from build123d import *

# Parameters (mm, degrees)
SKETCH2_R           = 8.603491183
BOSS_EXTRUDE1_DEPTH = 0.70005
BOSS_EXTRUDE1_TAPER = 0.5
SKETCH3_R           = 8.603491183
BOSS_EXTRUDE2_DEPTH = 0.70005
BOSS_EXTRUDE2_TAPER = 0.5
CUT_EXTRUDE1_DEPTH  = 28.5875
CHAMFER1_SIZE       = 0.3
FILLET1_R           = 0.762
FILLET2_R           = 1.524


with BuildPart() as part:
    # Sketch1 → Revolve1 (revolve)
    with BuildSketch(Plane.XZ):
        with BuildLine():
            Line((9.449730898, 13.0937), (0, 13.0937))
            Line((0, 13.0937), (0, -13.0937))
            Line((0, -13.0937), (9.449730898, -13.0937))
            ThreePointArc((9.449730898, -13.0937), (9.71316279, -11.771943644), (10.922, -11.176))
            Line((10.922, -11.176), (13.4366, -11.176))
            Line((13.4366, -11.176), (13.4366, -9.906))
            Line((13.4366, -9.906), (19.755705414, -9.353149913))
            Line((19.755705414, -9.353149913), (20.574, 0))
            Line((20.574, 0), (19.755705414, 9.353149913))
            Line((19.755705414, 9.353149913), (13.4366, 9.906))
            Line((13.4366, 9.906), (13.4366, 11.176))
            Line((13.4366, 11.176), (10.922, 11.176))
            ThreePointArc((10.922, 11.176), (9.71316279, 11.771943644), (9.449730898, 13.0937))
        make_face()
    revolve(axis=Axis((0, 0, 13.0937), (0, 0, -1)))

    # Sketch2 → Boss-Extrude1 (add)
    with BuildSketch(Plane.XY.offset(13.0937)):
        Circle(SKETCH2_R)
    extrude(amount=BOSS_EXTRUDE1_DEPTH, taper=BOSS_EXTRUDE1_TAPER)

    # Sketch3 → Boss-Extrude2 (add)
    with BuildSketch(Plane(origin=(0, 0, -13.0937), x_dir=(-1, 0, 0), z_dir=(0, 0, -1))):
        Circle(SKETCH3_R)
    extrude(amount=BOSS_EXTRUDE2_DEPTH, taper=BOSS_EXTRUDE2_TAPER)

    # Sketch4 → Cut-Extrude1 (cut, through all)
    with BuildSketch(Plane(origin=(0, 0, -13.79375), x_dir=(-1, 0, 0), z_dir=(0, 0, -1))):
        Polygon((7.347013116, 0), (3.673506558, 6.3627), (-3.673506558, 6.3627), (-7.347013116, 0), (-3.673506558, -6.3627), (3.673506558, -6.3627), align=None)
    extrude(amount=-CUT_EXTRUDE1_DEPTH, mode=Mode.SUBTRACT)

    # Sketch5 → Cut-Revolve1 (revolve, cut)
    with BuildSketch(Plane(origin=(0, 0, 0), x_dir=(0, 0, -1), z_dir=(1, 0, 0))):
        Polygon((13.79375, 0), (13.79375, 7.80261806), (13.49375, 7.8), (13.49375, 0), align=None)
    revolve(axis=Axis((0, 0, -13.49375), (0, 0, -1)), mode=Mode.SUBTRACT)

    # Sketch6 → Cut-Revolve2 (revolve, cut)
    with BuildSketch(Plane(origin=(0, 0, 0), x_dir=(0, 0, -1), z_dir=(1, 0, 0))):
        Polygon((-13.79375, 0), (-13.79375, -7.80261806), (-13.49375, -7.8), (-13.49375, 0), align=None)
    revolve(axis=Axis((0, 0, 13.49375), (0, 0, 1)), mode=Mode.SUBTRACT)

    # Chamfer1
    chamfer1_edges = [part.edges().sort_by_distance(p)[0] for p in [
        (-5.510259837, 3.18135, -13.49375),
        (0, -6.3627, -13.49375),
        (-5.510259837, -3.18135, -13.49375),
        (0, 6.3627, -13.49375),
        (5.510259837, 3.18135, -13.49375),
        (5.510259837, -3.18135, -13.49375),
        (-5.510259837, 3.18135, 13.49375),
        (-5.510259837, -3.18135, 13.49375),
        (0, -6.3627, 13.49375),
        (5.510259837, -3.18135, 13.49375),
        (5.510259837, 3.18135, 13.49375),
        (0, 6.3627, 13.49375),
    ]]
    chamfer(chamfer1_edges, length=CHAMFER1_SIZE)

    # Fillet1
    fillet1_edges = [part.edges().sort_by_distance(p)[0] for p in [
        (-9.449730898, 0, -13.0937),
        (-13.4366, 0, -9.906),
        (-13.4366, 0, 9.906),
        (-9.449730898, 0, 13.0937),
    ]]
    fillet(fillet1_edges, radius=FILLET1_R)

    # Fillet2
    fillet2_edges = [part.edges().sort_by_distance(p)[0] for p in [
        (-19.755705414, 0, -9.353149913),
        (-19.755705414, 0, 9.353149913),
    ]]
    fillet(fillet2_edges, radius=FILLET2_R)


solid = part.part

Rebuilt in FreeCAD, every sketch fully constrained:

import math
import FreeCAD as App
import Part
import Sketcher

V = App.Vector
Q = App.Units.Quantity


def edges_at(feature, points):
    """Names of the edges that pass closest to the given points."""
    edges = feature.Shape.Edges
    near = lambda p: min(range(len(edges)), key=lambda i: edges[i].distToShape(Part.Vertex(*p))[0])
    return sorted({f"Edge{near(p) + 1}" for p in points})

doc = App.newDocument("Part")
body = doc.addObject("PartDesign::Body", "Body")

# Sketch on XZ plane
sketch1 = doc.addObject("Sketcher::SketchObject", "Sketch")
body.addObject(sketch1)
sketch1.AttachmentSupport = (doc.XZ_Plane, [""])
sketch1.MapMode = "FlatFace"
sketch1.addGeometry([
    Part.LineSegment(V(9.4, 13.1, 0), V(0, 13.1, 0)),  # 0
    Part.LineSegment(V(0, 13.1, 0), V(0, -13.1, 0)),  # 1
    Part.LineSegment(V(0, -13.1, 0), V(9.4, -13.1, 0)),  # 2
    Part.ArcOfCircle(Part.Circle(V(10.9, -12.7, 0), V(0, 0, 1), 1.5), math.radians(90), math.radians(195)),  # 3
    Part.LineSegment(V(10.9, -11.2, 0), V(13.4, -11.2, 0)),  # 4
    Part.LineSegment(V(13.4, -11.2, 0), V(13.4, -9.9, 0)),  # 5
    Part.LineSegment(V(13.4, -9.9, 0), V(19.8, -9.4, 0)),  # 6
    Part.LineSegment(V(19.8, -9.4, 0), V(20.6, 0, 0)),  # 7
    Part.LineSegment(V(20.6, 0, 0), V(19.8, 9.4, 0)),  # 8
    Part.LineSegment(V(19.8, 9.4, 0), V(13.4, 9.9, 0)),  # 9
    Part.LineSegment(V(13.4, 9.9, 0), V(13.4, 11.2, 0)),  # 10
    Part.LineSegment(V(13.4, 11.2, 0), V(10.9, 11.2, 0)),  # 11
    Part.ArcOfCircle(Part.Circle(V(10.9, 12.7, 0), V(0, 0, 1), 1.5), math.radians(165), math.radians(270)),  # 12
], False)
sketch1.addConstraint([
    Sketcher.Constraint("Coincident", 0, 2, 1, 1),
    Sketcher.Constraint("Coincident", 1, 2, 2, 1),
    Sketcher.Constraint("Coincident", 2, 2, 3, 2),
    Sketcher.Constraint("Tangent", 3, 1, 4, 1),
    Sketcher.Constraint("Coincident", 4, 2, 5, 1),
    Sketcher.Constraint("Coincident", 5, 2, 6, 1),
    Sketcher.Constraint("Coincident", 6, 2, 7, 1),
    Sketcher.Constraint("Coincident", 7, 2, 8, 1),
    Sketcher.Constraint("Coincident", 8, 2, 9, 1),
    Sketcher.Constraint("Coincident", 9, 2, 10, 1),
    Sketcher.Constraint("Coincident", 10, 2, 11, 1),
    Sketcher.Constraint("Tangent", 11, 2, 12, 2),
    Sketcher.Constraint("Coincident", 12, 1, 0, 1),
    Sketcher.Constraint("Horizontal", 0),
    Sketcher.Constraint("Vertical", 1),
    Sketcher.Constraint("Horizontal", 2),
    Sketcher.Constraint("Horizontal", 4),
    Sketcher.Constraint("Vertical", 5),
    Sketcher.Constraint("Vertical", 10),
    Sketcher.Constraint("Horizontal", 11),
    Sketcher.Constraint("Equal", 3, 12),
    Sketcher.Constraint("Symmetric", 0, 2, 1, 2, -1, 1),
    Sketcher.Constraint("Symmetric", 3, 3, 12, 3, -1),
    Sketcher.Constraint("Symmetric", 6, 2, 8, 2, -1),
    Sketcher.Constraint("Symmetric", 5, 2, 9, 2, -1),
    Sketcher.Constraint("PointOnObject", 7, 2, -1),
    Sketcher.Constraint("Perpendicular", 6, 8),
    Sketcher.Constraint("Radius", 3, Q("0.06 in")),
    Sketcher.Constraint("Angle", 6, Q("5 deg")),
    Sketcher.Constraint("DistanceY", 3, 3, 12, 3, Q("1 in")),
    Sketcher.Constraint("DistanceY", 5, 1, 5, 2, Q("0.05 in")),
    Sketcher.Constraint("DistanceX", 4, 1, 4, 2, Q("0.099 in")),
    Sketcher.Constraint("DistanceY", 1, 2, 1, 1, Q("1.031 in")),
    Sketcher.Constraint("DistanceX", -1, 1, 3, 3, Q("0.43 in")),
    Sketcher.Constraint("DistanceX", -1, 1, 7, 2, Q("0.81 in")),
])
revolution = doc.addObject("PartDesign::Revolution", "Revolution")
body.addObject(revolution)
revolution.Profile = sketch1
revolution.ReferenceAxis = (sketch1, ["V_Axis"])
revolution.Angle = 360

# Sketch on XY plane
sketch2 = doc.addObject("Sketcher::SketchObject", "Sketch001")
body.addObject(sketch2)
sketch2.AttachmentSupport = (doc.XY_Plane, [""])
sketch2.MapMode = "FlatFace"
sketch2.AttachmentOffset = App.Placement(V(0, 0, 0.5155 * 25.4), App.Rotation())
sketch2.addGeometry(Part.Circle(V(0, 0, 0), V(0, 0, 1), 9), False)
sketch2.addConstraint([
    Sketcher.Constraint("Coincident", 0, 3, -1, 1),
    Sketcher.Constraint("Diameter", 0, 17.206982),
])
pad1 = doc.addObject("PartDesign::Pad", "Pad")
body.addObject(pad1)
pad1.Profile = sketch2
pad1.Length = 0.70005
pad1.TaperAngle = -0.5

# Sketch on XY plane
sketch3 = doc.addObject("Sketcher::SketchObject", "Sketch002")
body.addObject(sketch3)
sketch3.AttachmentSupport = (doc.XY_Plane, [""])
sketch3.MapMode = "FlatFace"
sketch3.AttachmentOffset = App.Placement(V(0, 0, -0.5155 * 25.4), App.Rotation())
sketch3.addGeometry(Part.Circle(V(0, 0, 0), V(0, 0, 1), 9), False)
sketch3.addConstraint([
    Sketcher.Constraint("Coincident", 0, 3, -1, 1),
    Sketcher.Constraint("Diameter", 0, 17.206982),
])
pad2 = doc.addObject("PartDesign::Pad", "Pad001")
body.addObject(pad2)
pad2.Profile = sketch3
pad2.Length = 0.70005
pad2.Reversed = True
pad2.TaperAngle = -0.5

# Sketch on XY plane
sketch4 = doc.addObject("Sketcher::SketchObject", "Sketch003")
body.addObject(sketch4)
sketch4.AttachmentSupport = (doc.XY_Plane, [""])
sketch4.MapMode = "FlatFace"
sketch4.AttachmentOffset = App.Placement(V(0, 0, -13.79375), App.Rotation())
sketch4.addGeometry([
    Part.LineSegment(V(-7, 0, 0), V(-4, 6, 0)),  # 0
    Part.LineSegment(V(-4, 6, 0), V(4, 6, 0)),  # 1
    Part.LineSegment(V(4, 6, 0), V(7, 0, 0)),  # 2
    Part.LineSegment(V(7, 0, 0), V(4, -6, 0)),  # 3
    Part.LineSegment(V(4, -6, 0), V(-4, -6, 0)),  # 4
    Part.LineSegment(V(-4, -6, 0), V(-7, 0, 0)),  # 5
], False)
sketch4.addConstraint([
    Sketcher.Constraint("Coincident", 0, 2, 1, 1),
    Sketcher.Constraint("Coincident", 1, 2, 2, 1),
    Sketcher.Constraint("Coincident", 2, 2, 3, 1),
    Sketcher.Constraint("Coincident", 3, 2, 4, 1),
    Sketcher.Constraint("Coincident", 4, 2, 5, 1),
    Sketcher.Constraint("Coincident", 5, 2, 0, 1),
    Sketcher.Constraint("Horizontal", 1),
    Sketcher.Constraint("Horizontal", 4),
    Sketcher.Constraint("Symmetric", 0, 2, 3, 2, -1, 1),
    Sketcher.Constraint("Symmetric", 2, 2, 5, 2, -1, 1),
    Sketcher.Constraint("PointOnObject", 2, 2, -1),
    Sketcher.Constraint("Parallel", 2, 5),
    Sketcher.Constraint("Vertical", 1, 2, 3, 2),
    Sketcher.Constraint("Angle", 0, Q("60 deg")),
    Sketcher.Constraint("DistanceY", 3, 2, 1, 2, Q("0.501 in")),
    Sketcher.Constraint("DistanceX", 1, 1, 1, 2, 7.347013),
])
pocket1 = doc.addObject("PartDesign::Pocket", "Pocket")
body.addObject(pocket1)
pocket1.Profile = sketch4
pocket1.Type = "ThroughAll"
pocket1.Reversed = True

# Sketch on YZ plane
sketch5 = doc.addObject("Sketcher::SketchObject", "Sketch004")
body.addObject(sketch5)
sketch5.AttachmentSupport = (doc.YZ_Plane, [""])
sketch5.MapMode = "FlatFace"
sketch5.addGeometry([
    Part.LineSegment(V(0, -13.79, 0), V(7.8, -13.79, 0)),
    Part.LineSegment(V(7.8, -13.79, 0), V(7.8, -13.49, 0)),
    Part.LineSegment(V(7.8, -13.49, 0), V(0, -13.49, 0)),
    Part.LineSegment(V(0, -13.49, 0), V(0, -13.79, 0)),
], False)
sketch5.addConstraint([
    Sketcher.Constraint("Coincident", 0, 2, 1, 1),
    Sketcher.Constraint("Coincident", 1, 2, 2, 1),
    Sketcher.Constraint("Coincident", 2, 2, 3, 1),
    Sketcher.Constraint("Coincident", 3, 2, 0, 1),
    Sketcher.Constraint("Horizontal", 0),
    Sketcher.Constraint("Horizontal", 2),
    Sketcher.Constraint("Vertical", 3),
    Sketcher.Constraint("PointOnObject", 2, 2, -2),
    Sketcher.Constraint("Angle", 1, Q("90.5 deg")),
    Sketcher.Constraint("DistanceY", 1, 2, -1, 1, Q("0.53125 in")),
    Sketcher.Constraint("DistanceX", 2, 2, 2, 1, 7.8),
    Sketcher.Constraint("DistanceY", 3, 2, 3, 1, 0.3),
])
groove = doc.addObject("PartDesign::Groove", "Groove")
body.addObject(groove)
groove.Profile = sketch5
groove.ReferenceAxis = (sketch5, ["V_Axis"])
groove.Angle = 360

# Sketch on YZ plane
sketch6 = doc.addObject("Sketcher::SketchObject", "Sketch005")
body.addObject(sketch6)
sketch6.AttachmentSupport = (doc.YZ_Plane, [""])
sketch6.MapMode = "FlatFace"
sketch6.addGeometry([
    Part.LineSegment(V(0, 13.79, 0), V(-7.8, 13.79, 0)),
    Part.LineSegment(V(-7.8, 13.79, 0), V(-7.8, 13.49, 0)),
    Part.LineSegment(V(-7.8, 13.49, 0), V(0, 13.49, 0)),
    Part.LineSegment(V(0, 13.49, 0), V(0, 13.79, 0)),
], False)
sketch6.addConstraint([
    Sketcher.Constraint("Coincident", 0, 2, 1, 1),
    Sketcher.Constraint("Coincident", 1, 2, 2, 1),
    Sketcher.Constraint("Coincident", 2, 2, 3, 1),
    Sketcher.Constraint("Coincident", 3, 2, 0, 1),
    Sketcher.Constraint("Horizontal", 0),
    Sketcher.Constraint("Horizontal", 2),
    Sketcher.Constraint("Vertical", 3),
    Sketcher.Constraint("PointOnObject", 2, 2, -2),
    Sketcher.Constraint("Angle", 1, Q("-89.5 deg")),
    Sketcher.Constraint("DistanceY", -1, 1, 1, 2, Q("0.53125 in")),
    Sketcher.Constraint("DistanceX", 2, 1, 2, 2, 7.8),
    Sketcher.Constraint("DistanceY", 3, 1, 3, 2, 0.3),
])
groove2 = doc.addObject("PartDesign::Groove", "Groove001")
body.addObject(groove2)
groove2.Profile = sketch6
groove2.ReferenceAxis = (sketch6, ["V_Axis"])
groove2.Angle = 360
doc.recompute()

chamfer = doc.addObject("PartDesign::Chamfer", "Chamfer")
body.addObject(chamfer)
chamfer.Base = (groove2, edges_at(groove2, [
    (-5.51, 3.181, -13.494),
    (0, -6.363, -13.494),
    (-5.51, -3.181, -13.494),
    (0, 6.363, -13.494),
    (5.51, 3.181, -13.494),
    (5.51, -3.181, -13.494),
    (-5.51, 3.181, 13.494),
    (-5.51, -3.181, 13.494),
    (0, -6.363, 13.494),
    (5.51, -3.181, 13.494),
    (5.51, 3.181, 13.494),
    (0, 6.363, 13.494),
]))
chamfer.Size = 0.3
doc.recompute()

fillet = doc.addObject("PartDesign::Fillet", "Fillet")
body.addObject(fillet)
fillet.Base = (chamfer, edges_at(chamfer, [
    (-9.45, 0, -13.094),
    (-13.437, 0, -9.906),
    (-13.437, 0, 9.906),
    (-9.45, 0, 13.094),
]))
fillet.Radius = Q("0.03 in")
doc.recompute()

fillet2 = doc.addObject("PartDesign::Fillet", "Fillet001")
body.addObject(fillet2)
fillet2.Base = (fillet, edges_at(fillet, [(-19.756, 0, -9.353), (-19.756, 0, 9.353)]))
fillet2.Radius = Q("0.06 in")

doc.recompute()
